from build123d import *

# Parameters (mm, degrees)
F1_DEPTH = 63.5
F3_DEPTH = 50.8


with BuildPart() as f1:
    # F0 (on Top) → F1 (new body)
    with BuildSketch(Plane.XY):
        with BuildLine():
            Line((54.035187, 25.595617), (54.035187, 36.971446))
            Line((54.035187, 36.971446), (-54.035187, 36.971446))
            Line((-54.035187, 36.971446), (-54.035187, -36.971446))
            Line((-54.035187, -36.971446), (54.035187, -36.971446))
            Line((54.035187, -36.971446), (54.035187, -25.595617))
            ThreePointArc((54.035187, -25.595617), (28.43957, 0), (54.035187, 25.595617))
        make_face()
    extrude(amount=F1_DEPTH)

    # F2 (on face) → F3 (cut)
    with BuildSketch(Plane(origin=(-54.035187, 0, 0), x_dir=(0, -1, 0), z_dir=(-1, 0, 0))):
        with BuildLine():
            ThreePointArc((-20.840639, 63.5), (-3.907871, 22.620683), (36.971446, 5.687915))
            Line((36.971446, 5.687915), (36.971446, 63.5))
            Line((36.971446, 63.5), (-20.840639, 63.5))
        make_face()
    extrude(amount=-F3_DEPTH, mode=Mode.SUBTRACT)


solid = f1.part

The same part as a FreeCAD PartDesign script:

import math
import FreeCAD as App
import Part
import Sketcher
from FreeCAD import Vector
Q = App.Units.Quantity

doc = App.newDocument("Part")
body = doc.addObject("PartDesign::Body", "Body")

sketch1 = doc.addObject("Sketcher::SketchObject", "Sketch")
body.addObject(sketch1)
sketch1.AttachmentSupport = (doc.XY_Plane, [""])
sketch1.MapMode = "FlatFace"
sketch1.addGeometry([
    Part.LineSegment(Vector(54, 26, 0), Vector(54, 37, 0)),
    Part.LineSegment(Vector(54, 37, 0), Vector(-54, 37, 0)),
    Part.LineSegment(Vector(-54, 37, 0), Vector(-54, -37, 0)),
    Part.LineSegment(Vector(-54, -37, 0), Vector(54, -37, 0)),
    Part.LineSegment(Vector(54, -37, 0), Vector(54, -26, 0)),
    Part.ArcOfCircle(Part.Circle(Vector(54, 0, 0), Vector(0, 0, 1), 26), math.radians(90), math.radians(270)),
], False)
sketch1.addConstraint([
    Sketcher.Constraint("Coincident", 0, 2, 1, 1),
    Sketcher.Constraint("Coincident", 1, 2, 2, 1),
    Sketcher.Constraint("Coincident", 2, 2, 3, 1),
    Sketcher.Constraint("Coincident", 3, 2, 4, 1),
    Sketcher.Constraint("Coincident", 4, 2, 5, 2),
    Sketcher.Constraint("Coincident", 5, 1, 0, 1),
    Sketcher.Constraint("Vertical", 0),
    Sketcher.Constraint("Horizontal", 1),
    Sketcher.Constraint("Vertical", 2),
    Sketcher.Constraint("Horizontal", 3),
    Sketcher.Constraint("Vertical", 4),
    Sketcher.Constraint("Symmetric", 0, 2, 2, 2, -1, 1),
    Sketcher.Constraint("Symmetric", 4, 2, 5, 1, -1),
    Sketcher.Constraint("Vertical", 5, 3, 0, 2),
    Sketcher.Constraint("Radius", 5, Q("25.595617 mm")),
    Sketcher.Constraint("DistanceY", 0, 1, 0, 2, Q("11.375829 mm")),
    Sketcher.Constraint("DistanceX", 1, 2, 1, 1, Q("108.070374 mm")),
])
pad1 = doc.addObject("PartDesign::Pad", "Pad")
body.addObject(pad1)
pad1.Profile = sketch1
pad1.Length = Q("2.5 in")

sketch2 = doc.addObject("Sketcher::SketchObject", "Sketch001")
body.addObject(sketch2)
sketch2.AttachmentSupport = (doc.YZ_Plane, [""])
sketch2.MapMode = "FlatFace"
sketch2.AttachmentOffset = App.Placement(Vector(0, 0, -54.035187), App.Rotation())
sketch2.addGeometry([
    Part.ArcOfCircle(Part.Circle(Vector(-37, 64, 0), Vector(0, 0, 1), 58), math.radians(-90), math.radians(0)),
    Part.LineSegment(Vector(-37, 6, 0), Vector(-37, 64, 0)),
    Part.LineSegment(Vector(-37, 64, 0), Vector(21, 64, 0)),
], False)
sketch2.addConstraint([
    Sketcher.Constraint("Coincident", 0, 1, 1, 1),
    Sketcher.Constraint("Coincident", 1, 2, 2, 1),
    Sketcher.Constraint("Coincident", 2, 2, 0, 2),
    Sketcher.Constraint("Vertical", 1),
    Sketcher.Constraint("Horizontal", 2),
    Sketcher.Constraint("Coincident", 1, 2, 0, 3),
    Sketcher.Constraint("DistanceY", -1, 1, 0, 3, Q("2.5 in")),
    Sketcher.Constraint("Radius", 0, Q("57.812086 mm")),
    Sketcher.Constraint("DistanceX", -1, 1, 2, 2, Q("20.840639 mm")),
])
pocket1 = doc.addObject("PartDesign::Pocket", "Pocket")
body.addObject(pocket1)
pocket1.Profile = sketch2
pocket1.Length = Q("2 in")
pocket1.Reversed = True

doc.recompute()
